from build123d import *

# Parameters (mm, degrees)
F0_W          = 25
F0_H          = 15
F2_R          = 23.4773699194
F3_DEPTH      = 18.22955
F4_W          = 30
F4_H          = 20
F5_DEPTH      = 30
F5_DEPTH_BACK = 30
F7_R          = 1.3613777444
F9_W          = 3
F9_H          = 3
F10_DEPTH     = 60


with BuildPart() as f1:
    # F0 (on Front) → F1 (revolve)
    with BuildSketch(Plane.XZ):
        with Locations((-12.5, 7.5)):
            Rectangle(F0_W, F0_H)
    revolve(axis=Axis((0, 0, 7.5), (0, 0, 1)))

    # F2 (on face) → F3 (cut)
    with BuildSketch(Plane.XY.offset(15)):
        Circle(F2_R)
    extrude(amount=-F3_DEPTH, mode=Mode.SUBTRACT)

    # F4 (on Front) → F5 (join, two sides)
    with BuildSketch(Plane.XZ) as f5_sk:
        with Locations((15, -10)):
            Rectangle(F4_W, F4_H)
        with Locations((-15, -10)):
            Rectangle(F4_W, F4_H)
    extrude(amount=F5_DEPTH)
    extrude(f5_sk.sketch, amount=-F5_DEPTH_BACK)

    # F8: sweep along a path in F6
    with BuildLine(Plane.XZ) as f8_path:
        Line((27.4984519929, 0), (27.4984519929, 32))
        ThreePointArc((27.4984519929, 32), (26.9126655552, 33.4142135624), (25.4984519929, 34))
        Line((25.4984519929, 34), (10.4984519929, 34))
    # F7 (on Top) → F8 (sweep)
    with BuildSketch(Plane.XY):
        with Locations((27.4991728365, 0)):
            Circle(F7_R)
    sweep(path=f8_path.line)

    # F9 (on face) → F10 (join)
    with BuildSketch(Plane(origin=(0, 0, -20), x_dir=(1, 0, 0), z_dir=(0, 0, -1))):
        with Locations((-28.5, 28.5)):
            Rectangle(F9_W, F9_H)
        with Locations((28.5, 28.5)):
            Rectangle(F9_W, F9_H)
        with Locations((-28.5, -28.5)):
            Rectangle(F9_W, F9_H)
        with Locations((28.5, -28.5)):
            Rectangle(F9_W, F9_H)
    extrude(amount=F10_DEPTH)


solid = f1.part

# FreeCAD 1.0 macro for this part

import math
import FreeCAD as App
import Part
import Sketcher
from FreeCAD import Vector
Q = App.Units.Quantity


def add_polygon(sketch, points):
    """Adds a closed chain of lines whose ends are joined by coincident constraints."""
    first, n = sketch.GeometryCount, len(points)
    for a, b in zip(points, points[1:] + points[:1]):
        sketch.addGeometry(Part.LineSegment(App.Vector(*a, 0), App.Vector(*b, 0)), False)
    for i in range(n):
        sketch.addConstraint(Sketcher.Constraint("Coincident", first + i, 2, first + (i + 1) % n, 1))

doc = App.newDocument("Part")
params = doc.addObject("Spreadsheet::Sheet", "Params")
for row, (alias, value) in enumerate([
    ("sketch1_width", "25 mm"),
    ("sketch1_height", "15 mm"),
    ("revolution_angle", "360 deg"),
    ("pocket1_length", "18.22955 mm"),
    ("sketch3_width", "60 mm"),
    ("sketch3_height", "20 mm"),
    ("pad1_length", "30 mm"),
    ("pad1_length2", "30 mm"),
    ("sketch5_radius", "2 mm"),
    ("sketch5_width", "15 mm"),
    ("sketch5_height", "32 mm"),
    ("sketch6_width", "3 mm"),
    ("pad2_length", "60 mm"),
], start=1):
    params.set(f"A{row}", alias)
    params.set(f"B{row}", "=" + value)
    params.setAlias(f"B{row}", alias)

body = doc.addObject("PartDesign::Body", "Body")

# Sketch on XZ plane
sketch1 = body.newObject("Sketcher::SketchObject", "Sketch")
sketch1.AttachmentSupport = (doc.getObject("XZ_Plane"), [""])
sketch1.MapMode = "FlatFace"
add_polygon(sketch1, [(-25, 15), (-25, 0), (0, 0), (0, 15)])  # lines 0-3
sketch1.addConstraint([
    Sketcher.Constraint("Vertical", 0),
    Sketcher.Constraint("Horizontal", 1),
    Sketcher.Constraint("Vertical", 2),
    Sketcher.Constraint("Horizontal", 3),
    Sketcher.Constraint("Coincident", 1, 2, -1, 1),
    Sketcher.Constraint("DistanceX", 1, 1, 1, 2, Q("25 mm")),
    Sketcher.Constraint("DistanceY", 0, 2, 0, 1, Q("15 mm")),
])
sketch1.setExpression("Constraints[9]", "Params.sketch1_width")
sketch1.setExpression("Constraints[10]", "Params.sketch1_height")
revolution = body.newObject("PartDesign::Revolution", "Revolution")
revolution.Profile = sketch1
revolution.ReferenceAxis = (sketch1, ["V_Axis"])
revolution.setExpression("Angle", "Params.revolution_angle")

# Sketch on XY plane
sketch2 = body.newObject("Sketcher::SketchObject", "Sketch001")
sketch2.AttachmentSupport = (doc.getObject("XY_Plane"), [""])
sketch2.MapMode = "FlatFace"
sketch2.AttachmentOffset = App.Placement(Vector(0, 0, 15), App.Rotation())
sketch2.addGeometry(Part.Circle(Vector(0, 0, 0), Vector(0, 0, 1), 23), False)
sketch2.addConstraint([
    Sketcher.Constraint("Coincident", 0, 3, -1, 1),
    Sketcher.Constraint("Diameter", 0, Q("46.95474 mm")),
])
pocket1 = body.newObject("PartDesign::Pocket", "Pocket")
pocket1.Profile = sketch2
pocket1.setExpression("Length", "Params.pocket1_length")

# Sketch on XZ plane
sketch3 = body.newObject("Sketcher::SketchObject", "Sketch002")
sketch3.AttachmentSupport = (doc.getObject("XZ_Plane"), [""])
sketch3.MapMode = "FlatFace"
add_polygon(sketch3, [(30, -20), (30, 0), (-30, 0), (-30, -20)])  # lines 0-3
sketch3.addConstraint([
    Sketcher.Constraint("Vertical", 0),
    Sketcher.Constraint("Horizontal", 1),
    Sketcher.Constraint("Vertical", 2),
    Sketcher.Constraint("Horizontal", 3),
    Sketcher.Constraint("Symmetric", 0, 2, 1, 2, -1, 1),
    Sketcher.Constraint("DistanceX", 1, 2, 1, 1, Q("60 mm")),
    Sketcher.Constraint("DistanceY", 0, 1, 0, 2, Q("20 mm")),
])
sketch3.setExpression("Constraints[9]", "Params.sketch3_width")
sketch3.setExpression("Constraints[10]", "Params.sketch3_height")
pad1 = body.newObject("PartDesign::Pad", "Pad")
pad1.Profile = sketch3
pad1.Type = "TwoLengths"
pad1.setExpression("Length", "Params.pad1_length")
pad1.setExpression("Length2", "Params.pad1_length2")

# Sketch on XY plane
sketch4 = body.newObject("Sketcher::SketchObject", "Sketch003")
sketch4.AttachmentSupport = (doc.getObject("XY_Plane"), [""])
sketch4.MapMode = "FlatFace"
sketch4.addGeometry(Part.Circle(Vector(27.5, 0, 0), Vector(0, 0, 1), 1.4), False)
sketch4.addConstraint([
    Sketcher.Constraint("PointOnObject", 0, 3, -1),
    Sketcher.Constraint("Diameter", 0, Q("2.722755 mm")),
    Sketcher.Constraint("DistanceX", -1, 1, 0, 3, Q("27.499173 mm")),
])

# Sketch on XZ plane
sketch5 = body.newObject("Sketcher::SketchObject", "Sketch004")
sketch5.AttachmentSupport = (doc.getObject("XZ_Plane"), [""])
sketch5.MapMode = "FlatFace"
sketch5.addGeometry([
    Part.LineSegment(Vector(27.5, 0, 0), Vector(27.5, 32, 0)),
    Part.ArcOfCircle(Part.Circle(Vector(25.5, 32, 0), Vector(0, 0, 1), 2), math.radians(0), math.radians(90)),
    Part.LineSegment(Vector(25.5, 34, 0), Vector(10.5, 34, 0)),
], False)
sketch5.addConstraint([
    Sketcher.Constraint("Tangent", 0, 2, 1, 1),
    Sketcher.Constraint("Tangent", 1, 2, 2, 1),
    Sketcher.Constraint("Vertical", 0),
    Sketcher.Constraint("Horizontal", 2),
    Sketcher.Constraint("PointOnObject", 0, 1, -1),
    Sketcher.Constraint("Radius", 1, Q("2 mm")),
    Sketcher.Constraint("DistanceX", 2, 2, 2, 1, Q("15 mm")),
    Sketcher.Constraint("DistanceY", 0, 1, 0, 2, Q("32 mm")),
    Sketcher.Constraint("DistanceX", -1, 1, 1, 3, Q("25.498452 mm")),
])
sketch5.setExpression("Constraints[5]", "Params.sketch5_radius")
sketch5.setExpression("Constraints[6]", "Params.sketch5_width")
sketch5.setExpression("Constraints[7]", "Params.sketch5_height")
doc.recompute()

additivepipe = body.newObject("PartDesign::AdditivePipe", "AdditivePipe")
additivepipe.Profile = sketch4
additivepipe.Spine = (sketch5, ["Edge1", "Edge2", "Edge3"])

# Sketch on XY plane
sketch6 = body.newObject("Sketcher::SketchObject", "Sketch005")
sketch6.AttachmentSupport = (doc.getObject("XY_Plane"), [""])
sketch6.MapMode = "FlatFace"
sketch6.AttachmentOffset = App.Placement(Vector(0, 0, -20), App.Rotation())
add_polygon(sketch6, [(-30, -30), (-30, -27), (-27, -27), (-27, -30)])  # lines 0-3
add_polygon(sketch6, [(27, -30), (27, -27), (30, -27), (30, -30)])  # lines 4-7
add_polygon(sketch6, [(-30, 27), (-30, 30), (-27, 30), (-27, 27)])  # lines 8-11
add_polygon(sketch6, [(27, 27), (27, 30), (30, 30), (30, 27)])  # lines 12-15
sketch6.addConstraint([
    Sketcher.Constraint("Vertical", 0),
    Sketcher.Constraint("Horizontal", 1),
    Sketcher.Constraint("Vertical", 2),
    Sketcher.Constraint("Horizontal", 3),
    Sketcher.Constraint("Vertical", 4),
    Sketcher.Constraint("Horizontal", 5),
    Sketcher.Constraint("Vertical", 6),
    Sketcher.Constraint("Horizontal", 7),
    Sketcher.Constraint("Vertical", 8),
    Sketcher.Constraint("Horizontal", 9),
    Sketcher.Constraint("Vertical", 10),
    Sketcher.Constraint("Horizontal", 11),
    Sketcher.Constraint("Vertical", 12),
    Sketcher.Constraint("Horizontal", 13),
    Sketcher.Constraint("Vertical", 14),
    Sketcher.Constraint("Horizontal", 15),
    Sketcher.Constraint("Symmetric", 6, 2, 8, 2, -1, 1),
    Sketcher.Constraint("Symmetric", 4, 2, 10, 2, -1, 1),
    Sketcher.Constraint("Symmetric", 2, 2, 12, 2, -1, 1),
    Sketcher.Constraint("Symmetric", 0, 2, 14, 2, -1, 1),
    Sketcher.Constraint("Symmetric", 1, 2, 4, 2, -2),
    Sketcher.Constraint("Symmetric", 3, 2, 6, 2, -2),
    Sketcher.Constraint("Equal", 15, 0),
    Sketcher.Constraint("DistanceX", 1, 1, 1, 2, Q("3 mm")),
    Sketcher.Constraint("DistanceX", 0, 2, -1, 1, Q("30 mm")),
    Sketcher.Constraint("DistanceY", 0, 2, -1, 1, Q("27 mm")),
])
sketch6.setExpression("Constraints[39]", "Params.sketch6_width")
pad2 = body.newObject("PartDesign::Pad", "Pad001")
pad2.Profile = sketch6
pad2.setExpression("Length", "Params.pad2_length")
pad2.Reversed = True

doc.recompute()
